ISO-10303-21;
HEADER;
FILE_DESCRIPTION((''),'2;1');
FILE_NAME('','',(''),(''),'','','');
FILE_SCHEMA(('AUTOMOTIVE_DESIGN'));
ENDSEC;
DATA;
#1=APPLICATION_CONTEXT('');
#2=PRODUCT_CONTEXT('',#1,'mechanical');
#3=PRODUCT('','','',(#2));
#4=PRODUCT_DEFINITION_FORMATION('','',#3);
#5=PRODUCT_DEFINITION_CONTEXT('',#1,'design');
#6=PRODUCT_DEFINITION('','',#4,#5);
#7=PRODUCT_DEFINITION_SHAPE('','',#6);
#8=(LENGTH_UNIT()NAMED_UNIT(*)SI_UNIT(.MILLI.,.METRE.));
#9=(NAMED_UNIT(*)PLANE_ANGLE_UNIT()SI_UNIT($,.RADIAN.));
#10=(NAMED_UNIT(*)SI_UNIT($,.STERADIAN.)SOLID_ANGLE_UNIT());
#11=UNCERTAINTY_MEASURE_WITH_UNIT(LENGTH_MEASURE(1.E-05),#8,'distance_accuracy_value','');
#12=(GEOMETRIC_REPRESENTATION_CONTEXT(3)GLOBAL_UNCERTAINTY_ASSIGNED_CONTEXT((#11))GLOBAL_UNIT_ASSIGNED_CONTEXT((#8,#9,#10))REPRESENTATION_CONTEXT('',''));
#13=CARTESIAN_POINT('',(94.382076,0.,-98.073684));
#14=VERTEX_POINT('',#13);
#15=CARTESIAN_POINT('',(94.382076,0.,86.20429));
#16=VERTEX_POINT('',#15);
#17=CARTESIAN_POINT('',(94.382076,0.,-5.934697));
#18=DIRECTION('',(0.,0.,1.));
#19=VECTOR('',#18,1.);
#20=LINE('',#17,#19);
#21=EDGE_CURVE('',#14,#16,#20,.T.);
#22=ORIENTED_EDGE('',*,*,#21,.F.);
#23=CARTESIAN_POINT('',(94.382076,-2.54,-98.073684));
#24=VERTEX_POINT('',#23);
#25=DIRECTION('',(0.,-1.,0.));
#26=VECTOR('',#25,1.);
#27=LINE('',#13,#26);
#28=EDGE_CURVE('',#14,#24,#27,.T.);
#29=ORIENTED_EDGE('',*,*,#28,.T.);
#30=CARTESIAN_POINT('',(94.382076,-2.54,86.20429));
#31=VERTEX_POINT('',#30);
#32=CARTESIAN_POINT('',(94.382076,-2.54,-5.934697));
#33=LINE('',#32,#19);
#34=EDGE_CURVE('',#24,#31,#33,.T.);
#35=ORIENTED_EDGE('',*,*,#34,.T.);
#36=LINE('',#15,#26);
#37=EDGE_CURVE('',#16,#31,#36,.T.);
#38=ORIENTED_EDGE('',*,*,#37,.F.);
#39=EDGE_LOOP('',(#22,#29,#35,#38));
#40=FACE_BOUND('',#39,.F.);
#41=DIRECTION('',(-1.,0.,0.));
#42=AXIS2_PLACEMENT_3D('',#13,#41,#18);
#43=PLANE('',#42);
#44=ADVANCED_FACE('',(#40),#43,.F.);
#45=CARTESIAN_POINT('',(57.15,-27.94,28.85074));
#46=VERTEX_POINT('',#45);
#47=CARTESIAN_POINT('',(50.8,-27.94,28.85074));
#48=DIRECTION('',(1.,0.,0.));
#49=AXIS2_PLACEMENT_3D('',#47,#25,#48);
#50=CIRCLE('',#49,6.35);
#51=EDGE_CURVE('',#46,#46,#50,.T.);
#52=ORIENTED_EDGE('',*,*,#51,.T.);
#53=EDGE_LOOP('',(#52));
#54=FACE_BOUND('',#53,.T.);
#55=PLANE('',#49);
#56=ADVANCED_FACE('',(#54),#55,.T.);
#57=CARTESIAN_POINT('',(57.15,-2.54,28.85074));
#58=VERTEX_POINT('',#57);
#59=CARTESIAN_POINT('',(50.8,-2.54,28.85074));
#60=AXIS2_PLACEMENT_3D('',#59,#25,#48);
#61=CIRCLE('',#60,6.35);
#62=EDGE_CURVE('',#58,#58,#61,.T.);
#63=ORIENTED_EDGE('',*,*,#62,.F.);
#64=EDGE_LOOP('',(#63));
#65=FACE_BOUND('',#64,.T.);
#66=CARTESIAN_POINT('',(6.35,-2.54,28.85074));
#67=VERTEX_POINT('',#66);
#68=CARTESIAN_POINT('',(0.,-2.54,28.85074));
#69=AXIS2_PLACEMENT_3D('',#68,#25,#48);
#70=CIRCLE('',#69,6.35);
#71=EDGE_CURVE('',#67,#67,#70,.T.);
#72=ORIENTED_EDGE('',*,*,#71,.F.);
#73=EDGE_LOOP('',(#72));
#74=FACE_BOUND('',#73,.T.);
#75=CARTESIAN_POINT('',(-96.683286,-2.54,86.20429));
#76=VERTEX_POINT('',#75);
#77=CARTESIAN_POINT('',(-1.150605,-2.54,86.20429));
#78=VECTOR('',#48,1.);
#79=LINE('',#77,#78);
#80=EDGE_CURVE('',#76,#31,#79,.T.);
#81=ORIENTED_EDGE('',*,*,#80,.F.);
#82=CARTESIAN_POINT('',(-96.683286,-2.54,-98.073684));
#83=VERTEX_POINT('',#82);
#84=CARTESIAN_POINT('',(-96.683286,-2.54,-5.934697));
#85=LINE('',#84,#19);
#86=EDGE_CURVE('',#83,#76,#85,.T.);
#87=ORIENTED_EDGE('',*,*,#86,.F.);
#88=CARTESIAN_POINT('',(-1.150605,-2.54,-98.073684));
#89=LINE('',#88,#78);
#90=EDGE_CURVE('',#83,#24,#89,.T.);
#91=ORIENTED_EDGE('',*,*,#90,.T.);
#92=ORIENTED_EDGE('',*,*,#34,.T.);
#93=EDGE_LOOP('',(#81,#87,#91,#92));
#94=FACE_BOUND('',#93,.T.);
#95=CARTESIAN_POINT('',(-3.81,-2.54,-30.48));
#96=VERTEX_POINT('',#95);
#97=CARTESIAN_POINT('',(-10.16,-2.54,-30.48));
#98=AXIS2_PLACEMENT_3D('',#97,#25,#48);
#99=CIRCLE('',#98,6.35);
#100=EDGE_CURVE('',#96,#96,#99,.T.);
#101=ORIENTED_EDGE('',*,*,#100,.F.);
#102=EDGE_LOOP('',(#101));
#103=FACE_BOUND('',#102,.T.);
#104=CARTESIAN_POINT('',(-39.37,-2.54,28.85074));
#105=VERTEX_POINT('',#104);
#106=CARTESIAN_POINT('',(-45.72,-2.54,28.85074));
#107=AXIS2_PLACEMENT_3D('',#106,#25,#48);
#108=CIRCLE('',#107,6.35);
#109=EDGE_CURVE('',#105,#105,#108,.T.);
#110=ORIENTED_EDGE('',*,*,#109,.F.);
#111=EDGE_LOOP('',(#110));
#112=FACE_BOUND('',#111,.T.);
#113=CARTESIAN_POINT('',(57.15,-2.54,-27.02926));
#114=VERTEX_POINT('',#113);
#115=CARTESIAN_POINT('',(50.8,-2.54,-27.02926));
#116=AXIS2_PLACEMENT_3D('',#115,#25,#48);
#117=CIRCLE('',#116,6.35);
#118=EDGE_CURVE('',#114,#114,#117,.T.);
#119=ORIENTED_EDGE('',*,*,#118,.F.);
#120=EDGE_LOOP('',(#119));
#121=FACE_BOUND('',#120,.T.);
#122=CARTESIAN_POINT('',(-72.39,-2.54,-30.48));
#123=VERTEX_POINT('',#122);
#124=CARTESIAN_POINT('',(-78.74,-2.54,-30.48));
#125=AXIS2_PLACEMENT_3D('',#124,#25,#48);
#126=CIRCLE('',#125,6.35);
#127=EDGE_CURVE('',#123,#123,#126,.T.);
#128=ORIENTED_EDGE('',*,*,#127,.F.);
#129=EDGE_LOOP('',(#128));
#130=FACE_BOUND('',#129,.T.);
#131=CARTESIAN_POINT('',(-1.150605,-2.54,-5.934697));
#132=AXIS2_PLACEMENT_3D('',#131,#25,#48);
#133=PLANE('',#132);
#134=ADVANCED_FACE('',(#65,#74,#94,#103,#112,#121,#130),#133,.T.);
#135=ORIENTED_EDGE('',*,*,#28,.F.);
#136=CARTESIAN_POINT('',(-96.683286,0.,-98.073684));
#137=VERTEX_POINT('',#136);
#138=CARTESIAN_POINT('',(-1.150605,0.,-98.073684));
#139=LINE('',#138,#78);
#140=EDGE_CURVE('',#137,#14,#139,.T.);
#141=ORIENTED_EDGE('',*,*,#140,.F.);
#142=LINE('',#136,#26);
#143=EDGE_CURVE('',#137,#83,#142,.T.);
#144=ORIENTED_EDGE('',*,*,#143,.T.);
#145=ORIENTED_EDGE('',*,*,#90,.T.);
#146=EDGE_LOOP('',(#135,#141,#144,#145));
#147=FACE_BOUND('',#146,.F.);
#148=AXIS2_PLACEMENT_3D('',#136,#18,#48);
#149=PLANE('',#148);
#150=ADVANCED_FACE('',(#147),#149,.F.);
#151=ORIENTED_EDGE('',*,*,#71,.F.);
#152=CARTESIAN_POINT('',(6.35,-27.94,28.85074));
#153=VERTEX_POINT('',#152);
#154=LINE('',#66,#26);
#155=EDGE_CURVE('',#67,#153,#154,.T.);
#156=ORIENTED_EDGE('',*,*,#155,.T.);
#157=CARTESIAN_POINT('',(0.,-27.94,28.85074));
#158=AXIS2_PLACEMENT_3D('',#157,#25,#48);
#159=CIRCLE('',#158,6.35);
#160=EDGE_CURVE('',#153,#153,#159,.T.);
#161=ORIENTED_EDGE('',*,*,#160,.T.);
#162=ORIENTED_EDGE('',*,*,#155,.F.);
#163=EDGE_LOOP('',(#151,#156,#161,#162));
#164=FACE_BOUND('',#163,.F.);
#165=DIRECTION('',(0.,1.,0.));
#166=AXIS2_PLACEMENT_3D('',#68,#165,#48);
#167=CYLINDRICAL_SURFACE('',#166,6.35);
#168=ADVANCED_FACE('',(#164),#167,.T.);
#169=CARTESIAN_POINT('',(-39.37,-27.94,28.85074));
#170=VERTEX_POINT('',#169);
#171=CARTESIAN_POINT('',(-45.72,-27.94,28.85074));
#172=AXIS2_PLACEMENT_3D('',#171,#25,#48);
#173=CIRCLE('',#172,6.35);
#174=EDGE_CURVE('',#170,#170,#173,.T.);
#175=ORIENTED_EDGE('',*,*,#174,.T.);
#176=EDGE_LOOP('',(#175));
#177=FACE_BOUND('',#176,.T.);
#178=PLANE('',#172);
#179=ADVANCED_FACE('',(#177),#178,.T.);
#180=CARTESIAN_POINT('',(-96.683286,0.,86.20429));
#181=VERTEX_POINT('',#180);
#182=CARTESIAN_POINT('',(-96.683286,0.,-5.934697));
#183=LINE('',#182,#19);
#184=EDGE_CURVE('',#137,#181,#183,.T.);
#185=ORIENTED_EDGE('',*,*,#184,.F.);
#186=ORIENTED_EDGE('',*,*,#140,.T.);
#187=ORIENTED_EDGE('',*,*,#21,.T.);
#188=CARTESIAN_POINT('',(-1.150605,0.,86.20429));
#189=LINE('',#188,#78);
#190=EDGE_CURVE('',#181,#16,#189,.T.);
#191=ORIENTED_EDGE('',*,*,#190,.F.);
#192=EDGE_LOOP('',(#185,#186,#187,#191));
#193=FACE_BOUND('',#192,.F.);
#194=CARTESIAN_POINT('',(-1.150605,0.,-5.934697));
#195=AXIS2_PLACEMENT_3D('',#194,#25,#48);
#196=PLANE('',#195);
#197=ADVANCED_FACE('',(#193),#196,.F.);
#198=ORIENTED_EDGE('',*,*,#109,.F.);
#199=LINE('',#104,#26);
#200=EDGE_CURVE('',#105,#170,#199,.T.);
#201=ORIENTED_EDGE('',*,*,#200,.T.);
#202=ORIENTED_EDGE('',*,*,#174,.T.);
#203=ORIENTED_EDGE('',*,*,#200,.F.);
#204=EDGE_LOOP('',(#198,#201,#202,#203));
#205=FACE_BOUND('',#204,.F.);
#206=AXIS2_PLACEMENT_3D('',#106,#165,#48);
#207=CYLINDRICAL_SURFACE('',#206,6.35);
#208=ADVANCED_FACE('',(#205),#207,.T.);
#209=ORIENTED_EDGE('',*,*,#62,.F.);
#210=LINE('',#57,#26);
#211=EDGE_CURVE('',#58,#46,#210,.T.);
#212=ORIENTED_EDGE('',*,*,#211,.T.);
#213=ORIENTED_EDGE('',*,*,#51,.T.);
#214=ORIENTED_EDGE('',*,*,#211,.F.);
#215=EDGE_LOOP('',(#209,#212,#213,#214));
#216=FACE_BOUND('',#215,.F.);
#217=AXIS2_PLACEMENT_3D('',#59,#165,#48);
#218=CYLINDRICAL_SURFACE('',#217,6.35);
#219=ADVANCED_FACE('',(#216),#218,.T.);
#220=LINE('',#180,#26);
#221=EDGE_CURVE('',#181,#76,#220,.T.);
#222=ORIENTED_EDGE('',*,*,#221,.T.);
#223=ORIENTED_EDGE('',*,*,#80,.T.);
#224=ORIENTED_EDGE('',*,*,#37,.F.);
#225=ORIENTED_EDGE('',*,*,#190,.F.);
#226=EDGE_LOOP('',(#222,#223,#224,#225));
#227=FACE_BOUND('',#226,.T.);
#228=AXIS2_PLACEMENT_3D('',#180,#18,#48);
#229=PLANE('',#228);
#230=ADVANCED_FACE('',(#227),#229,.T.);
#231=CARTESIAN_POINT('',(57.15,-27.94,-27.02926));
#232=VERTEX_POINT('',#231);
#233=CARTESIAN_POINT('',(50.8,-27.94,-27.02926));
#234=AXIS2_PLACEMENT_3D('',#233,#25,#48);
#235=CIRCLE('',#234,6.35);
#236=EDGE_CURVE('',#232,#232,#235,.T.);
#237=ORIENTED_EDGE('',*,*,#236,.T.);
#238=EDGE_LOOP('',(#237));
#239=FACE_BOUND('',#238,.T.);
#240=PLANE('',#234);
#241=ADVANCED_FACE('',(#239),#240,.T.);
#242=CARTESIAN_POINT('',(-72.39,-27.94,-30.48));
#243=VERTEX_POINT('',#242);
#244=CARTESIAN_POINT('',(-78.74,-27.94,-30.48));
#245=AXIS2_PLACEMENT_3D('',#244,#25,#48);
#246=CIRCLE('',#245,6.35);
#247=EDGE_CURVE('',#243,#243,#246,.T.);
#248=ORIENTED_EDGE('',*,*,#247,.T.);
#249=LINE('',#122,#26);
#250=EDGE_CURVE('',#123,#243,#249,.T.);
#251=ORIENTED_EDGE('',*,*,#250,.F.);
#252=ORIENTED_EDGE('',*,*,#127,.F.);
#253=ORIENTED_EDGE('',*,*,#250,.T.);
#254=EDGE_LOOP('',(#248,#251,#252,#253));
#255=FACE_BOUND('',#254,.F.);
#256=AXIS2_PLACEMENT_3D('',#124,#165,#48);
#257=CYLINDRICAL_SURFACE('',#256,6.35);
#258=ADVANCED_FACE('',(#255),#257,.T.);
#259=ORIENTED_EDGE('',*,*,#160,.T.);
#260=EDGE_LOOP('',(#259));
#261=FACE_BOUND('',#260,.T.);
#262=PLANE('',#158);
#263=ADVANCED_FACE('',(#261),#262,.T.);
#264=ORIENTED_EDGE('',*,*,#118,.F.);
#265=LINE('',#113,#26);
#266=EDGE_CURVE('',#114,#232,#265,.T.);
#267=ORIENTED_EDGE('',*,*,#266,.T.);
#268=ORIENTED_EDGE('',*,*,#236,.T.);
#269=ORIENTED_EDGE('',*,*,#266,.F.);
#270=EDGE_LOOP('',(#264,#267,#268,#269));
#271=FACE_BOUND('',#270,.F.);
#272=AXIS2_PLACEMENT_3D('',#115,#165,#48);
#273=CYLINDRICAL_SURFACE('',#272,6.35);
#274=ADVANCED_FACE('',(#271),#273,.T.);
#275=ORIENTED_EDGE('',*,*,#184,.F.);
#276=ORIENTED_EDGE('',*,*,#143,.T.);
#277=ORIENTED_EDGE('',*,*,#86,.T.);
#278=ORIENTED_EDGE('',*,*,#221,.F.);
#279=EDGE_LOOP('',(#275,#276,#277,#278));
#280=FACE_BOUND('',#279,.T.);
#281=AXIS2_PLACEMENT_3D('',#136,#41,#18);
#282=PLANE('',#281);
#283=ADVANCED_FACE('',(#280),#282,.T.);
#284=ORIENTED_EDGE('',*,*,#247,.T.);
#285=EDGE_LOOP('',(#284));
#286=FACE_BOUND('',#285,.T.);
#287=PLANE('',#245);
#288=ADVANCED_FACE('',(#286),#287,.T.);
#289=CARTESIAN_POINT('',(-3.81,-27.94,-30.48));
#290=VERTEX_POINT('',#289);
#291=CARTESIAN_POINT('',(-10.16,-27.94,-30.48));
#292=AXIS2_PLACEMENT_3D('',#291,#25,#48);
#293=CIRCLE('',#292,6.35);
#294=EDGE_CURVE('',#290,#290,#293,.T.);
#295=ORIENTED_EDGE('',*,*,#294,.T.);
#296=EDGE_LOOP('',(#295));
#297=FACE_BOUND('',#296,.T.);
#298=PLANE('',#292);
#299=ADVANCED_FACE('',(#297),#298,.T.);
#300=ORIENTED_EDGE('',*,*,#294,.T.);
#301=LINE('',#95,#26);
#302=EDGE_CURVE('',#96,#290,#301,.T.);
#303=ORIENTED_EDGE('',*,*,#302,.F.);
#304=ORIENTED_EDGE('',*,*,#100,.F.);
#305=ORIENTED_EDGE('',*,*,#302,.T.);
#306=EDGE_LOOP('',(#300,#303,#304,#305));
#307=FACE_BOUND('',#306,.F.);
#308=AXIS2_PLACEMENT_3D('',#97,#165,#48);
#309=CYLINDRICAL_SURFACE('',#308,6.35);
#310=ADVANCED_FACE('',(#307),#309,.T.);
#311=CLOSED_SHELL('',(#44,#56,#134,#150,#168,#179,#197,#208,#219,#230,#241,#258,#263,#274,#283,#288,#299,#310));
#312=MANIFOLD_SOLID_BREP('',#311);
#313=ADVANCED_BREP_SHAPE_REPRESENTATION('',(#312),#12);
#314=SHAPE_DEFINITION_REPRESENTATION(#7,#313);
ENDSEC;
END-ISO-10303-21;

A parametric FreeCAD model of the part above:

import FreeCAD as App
import Part
import Sketcher
from FreeCAD import Vector
Q = App.Units.Quantity

doc = App.newDocument("Part")
params = doc.addObject("Spreadsheet::Sheet", "Params")
for row, (alias, value) in enumerate([
    ("pad1_length", "0.1 in"),
    ("sketch2_diameter", "0.5 in"),
    ("pad2_length", "1 in"),
    ("sketch3_diameter", "0.5 in"),
    ("pad3_length", "1 in"),
    ("sketch4_diameter", "0.5 in"),
    ("pad4_length", "1 in"),
    ("sketch5_diameter", "0.5 in"),
    ("pad5_length", "1 in"),
    ("sketch6_diameter", "0.5 in"),
    ("pad6_length", "1 in"),
], start=1):
    params.set(f"A{row}", alias)
    params.set(f"B{row}", "=" + value)
    params.setAlias(f"B{row}", alias)

body = doc.addObject("PartDesign::Body", "Body")

sketch1 = body.newObject("Sketcher::SketchObject", "Sketch")
sketch1.AttachmentSupport = (doc.getObject("XZ_Plane"), [""])
sketch1.MapMode = "FlatFace"
sketch1.addGeometry(Part.LineSegment(Vector(-97, 86, 0), Vector(-97, -98, 0)), False)
sketch1.addGeometry(Part.LineSegment(Vector(-97, -98, 0), Vector(94, -98, 0)), False)
sketch1.addGeometry(Part.LineSegment(Vector(94, -98, 0), Vector(94, 86, 0)), False)
sketch1.addGeometry(Part.LineSegment(Vector(94, 86, 0), Vector(-97, 86, 0)), False)
sketch1.addConstraint(Sketcher.Constraint("Coincident", 0, 2, 1, 1))
sketch1.addConstraint(Sketcher.Constraint("Coincident", 1, 2, 2, 1))
sketch1.addConstraint(Sketcher.Constraint("Coincident", 2, 2, 3, 1))
sketch1.addConstraint(Sketcher.Constraint("Coincident", 3, 2, 0, 1))
sketch1.addConstraint(Sketcher.Constraint("Vertical", 0))
sketch1.addConstraint(Sketcher.Constraint("Horizontal", 1))
sketch1.addConstraint(Sketcher.Constraint("Vertical", 2))
sketch1.addConstraint(Sketcher.Constraint("Horizontal", 3))
sketch1.addConstraint(Sketcher.Constraint("DistanceX", 1, 1, 1, 2, 191.065363))
sketch1.addConstraint(Sketcher.Constraint("DistanceY", 0, 2, 0, 1, 184.277974))
sketch1.addConstraint(Sketcher.Constraint("DistanceY", -1, 1, 2, 2, 86.20429))
sketch1.addConstraint(Sketcher.Constraint("DistanceX", 0, 2, -1, 1, 96.683286))
pad1 = body.newObject("PartDesign::Pad", "Pad")
pad1.Profile = sketch1
pad1.setExpression("Length", "Params.pad1_length")

sketch2 = body.newObject("Sketcher::SketchObject", "Sketch001")
sketch2.AttachmentSupport = (doc.getObject("XZ_Plane"), [""])
sketch2.MapMode = "FlatFace"
sketch2.AttachmentOffset = App.Placement(Vector(0, 0, 0.1 * 25.4), App.Rotation())
sketch2.addGeometry(Part.Circle(Vector(-46, 29, 0), Vector(0, 0, 1), 6), False)
sketch2.addConstraint(Sketcher.Constraint("Diameter", 0, Q("0.5 in")))
sketch2.addConstraint(Sketcher.Constraint("DistanceX", 0, 3, -1, 1, Q("1.8 in")))
sketch2.addConstraint(Sketcher.Constraint("DistanceY", -1, 1, 0, 3, 28.85074))
sketch2.setExpression("Constraints[0]", "Params.sketch2_diameter")
pad2 = body.newObject("PartDesign::Pad", "Pad001")
pad2.Profile = sketch2
pad2.setExpression("Length", "Params.pad2_length")

sketch3 = body.newObject("Sketcher::SketchObject", "Sketch002")
sketch3.AttachmentSupport = (doc.getObject("XZ_Plane"), [""])
sketch3.MapMode = "FlatFace"
sketch3.AttachmentOffset = App.Placement(Vector(0, 0, 0.1 * 25.4), App.Rotation())
sketch3.addGeometry(Part.Circle(Vector(0, 29, 0), Vector(0, 0, 1), 6), False)
sketch3.addGeometry(Part.Circle(Vector(51, 29, 0), Vector(0, 0, 1), 6), False)
sketch3.addConstraint(Sketcher.Constraint("Equal", 0, 1))
sketch3.addConstraint(Sketcher.Constraint("PointOnObject", 0, 3, -2))
sketch3.addConstraint(Sketcher.Constraint("Horizontal", 0, 3, 1, 3))
sketch3.addConstraint(Sketcher.Constraint("Diameter", 0, Q("0.5 in")))
sketch3.addConstraint(Sketcher.Constraint("DistanceX", -1, 1, 1, 3, Q("2 in")))
sketch3.addConstraint(Sketcher.Constraint("DistanceY", -1, 1, 0, 3, 28.85074))
sketch3.setExpression("Constraints[3]", "Params.sketch3_diameter")
pad3 = body.newObject("PartDesign::Pad", "Pad002")
pad3.Profile = sketch3
pad3.setExpression("Length", "Params.pad3_length")

sketch4 = body.newObject("Sketcher::SketchObject", "Sketch003")
sketch4.AttachmentSupport = (doc.getObject("XZ_Plane"), [""])
sketch4.MapMode = "FlatFace"
sketch4.AttachmentOffset = App.Placement(Vector(0, 0, 0.1 * 25.4), App.Rotation())
sketch4.addGeometry(Part.Circle(Vector(-79, -30, 0), Vector(0, 0, 1), 6), False)
sketch4.addConstraint(Sketcher.Constraint("Diameter", 0, Q("0.5 in")))
sketch4.addConstraint(Sketcher.Constraint("DistanceX", 0, 3, -1, 1, Q("3.1 in")))
sketch4.addConstraint(Sketcher.Constraint("DistanceY", 0, 3, -1, 1, Q("1.2 in")))
sketch4.setExpression("Constraints[0]", "Params.sketch4_diameter")
pad4 = body.newObject("PartDesign::Pad", "Pad003")
pad4.Profile = sketch4
pad4.setExpression("Length", "Params.pad4_length")

sketch5 = body.newObject("Sketcher::SketchObject", "Sketch004")
sketch5.AttachmentSupport = (doc.getObject("XZ_Plane"), [""])
sketch5.MapMode = "FlatFace"
sketch5.AttachmentOffset = App.Placement(Vector(0, 0, 0.1 * 25.4), App.Rotation())
sketch5.addGeometry(Part.Circle(Vector(51, -27, 0), Vector(0, 0, 1), 6), False)
sketch5.addConstraint(Sketcher.Constraint("Diameter", 0, Q("0.5 in")))
sketch5.addConstraint(Sketcher.Constraint("DistanceX", -1, 1, 0, 3, Q("2 in")))
sketch5.addConstraint(Sketcher.Constraint("DistanceY", 0, 3, -1, 1, 27.02926))
sketch5.setExpression("Constraints[0]", "Params.sketch5_diameter")
pad5 = body.newObject("PartDesign::Pad", "Pad004")
pad5.Profile = sketch5
pad5.setExpression("Length", "Params.pad5_length")

sketch6 = body.newObject("Sketcher::SketchObject", "Sketch005")
sketch6.AttachmentSupport = (doc.getObject("XZ_Plane"), [""])
sketch6.MapMode = "FlatFace"
sketch6.AttachmentOffset = App.Placement(Vector(0, 0, 0.1 * 25.4), App.Rotation())
sketch6.addGeometry(Part.Circle(Vector(-10, -30, 0), Vector(0, 0, 1), 6), False)
sketch6.addConstraint(Sketcher.Constraint("Diameter", 0, Q("0.5 in")))
sketch6.addConstraint(Sketcher.Constraint("DistanceX", 0, 3, -1, 1, Q("0.4 in")))
sketch6.addConstraint(Sketcher.Constraint("DistanceY", 0, 3, -1, 1, Q("1.2 in")))
sketch6.setExpression("Constraints[0]", "Params.sketch6_diameter")
pad6 = body.newObject("PartDesign::Pad", "Pad005")
pad6.Profile = sketch6
pad6.setExpression("Length", "Params.pad6_length")

doc.recompute()
